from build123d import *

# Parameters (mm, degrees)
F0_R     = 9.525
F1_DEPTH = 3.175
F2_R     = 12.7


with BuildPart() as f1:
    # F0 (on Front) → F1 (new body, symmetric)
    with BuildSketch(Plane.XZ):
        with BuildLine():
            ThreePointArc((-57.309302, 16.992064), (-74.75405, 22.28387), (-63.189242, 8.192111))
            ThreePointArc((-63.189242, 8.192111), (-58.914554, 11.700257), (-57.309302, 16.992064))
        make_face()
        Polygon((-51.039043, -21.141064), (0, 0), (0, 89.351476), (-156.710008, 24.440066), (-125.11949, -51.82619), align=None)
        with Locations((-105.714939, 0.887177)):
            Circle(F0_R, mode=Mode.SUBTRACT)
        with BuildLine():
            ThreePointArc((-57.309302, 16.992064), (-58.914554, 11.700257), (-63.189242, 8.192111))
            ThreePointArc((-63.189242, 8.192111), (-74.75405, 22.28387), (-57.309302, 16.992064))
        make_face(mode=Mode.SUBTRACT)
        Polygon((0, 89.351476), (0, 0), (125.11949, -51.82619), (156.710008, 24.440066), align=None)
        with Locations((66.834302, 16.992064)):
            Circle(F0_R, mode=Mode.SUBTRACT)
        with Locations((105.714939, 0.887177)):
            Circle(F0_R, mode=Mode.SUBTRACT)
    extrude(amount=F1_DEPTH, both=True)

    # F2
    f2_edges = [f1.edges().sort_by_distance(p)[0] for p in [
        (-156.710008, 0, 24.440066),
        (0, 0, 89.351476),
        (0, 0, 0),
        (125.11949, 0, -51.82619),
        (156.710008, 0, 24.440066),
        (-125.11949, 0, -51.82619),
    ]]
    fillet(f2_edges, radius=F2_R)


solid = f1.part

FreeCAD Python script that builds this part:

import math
import FreeCAD as App
import Part
import Sketcher
Q = App.Units.Quantity


def edges_at(feature, points):
    """Names of the edges that pass closest to the given points."""
    edges = feature.Shape.Edges
    near = lambda p: min(range(len(edges)), key=lambda i: edges[i].distToShape(Part.Vertex(*p))[0])
    return sorted({f"Edge{near(p) + 1}" for p in points})

doc = App.newDocument("Part")
body = doc.addObject("PartDesign::Body", "Body")

sketch1 = body.newObject("Sketcher::SketchObject", "Sketch")
sketch1.AttachmentSupport = (doc.getObject("XZ_Plane"), [""])
sketch1.MapMode = "FlatFace"
sketch1.addGeometry(Part.LineSegment(App.Vector(-51, -21, 0), App.Vector(0, 0, 0)), False)
sketch1.addGeometry(Part.LineSegment(App.Vector(0, 0, 0), App.Vector(125, -52, 0)), False)
sketch1.addGeometry(Part.LineSegment(App.Vector(125, -52, 0), App.Vector(157, 24, 0)), False)
sketch1.addGeometry(Part.LineSegment(App.Vector(157, 24, 0), App.Vector(0, 89, 0)), False)
sketch1.addGeometry(Part.LineSegment(App.Vector(0, 89, 0), App.Vector(-157, 24, 0)), False)
sketch1.addGeometry(Part.LineSegment(App.Vector(-157, 24, 0), App.Vector(-125, -52, 0)), False)
sketch1.addGeometry(Part.LineSegment(App.Vector(-125, -52, 0), App.Vector(-51, -21, 0)), False)
sketch1.addGeometry(Part.Circle(App.Vector(-106, 1, 0), App.Vector(0, 0, 1), 10), False)
sketch1.addGeometry(Part.Circle(App.Vector(106, 1, 0), App.Vector(0, 0, 1), 10), False)
sketch1.addGeometry(Part.ArcOfCircle(Part.Circle(App.Vector(-67, 17, 0), App.Vector(0, 0, 1), 10), math.radians(0), math.radians(293)), False)
sketch1.addGeometry(Part.ArcOfCircle(Part.Circle(App.Vector(-67, 17, 0), App.Vector(0, 0, 1), 10), math.radians(-67), math.radians(0)), False)
sketch1.addGeometry(Part.Circle(App.Vector(67, 17, 0), App.Vector(0, 0, 1), 10), False)
sketch1.addConstraint(Sketcher.Constraint("Coincident", 0, 2, 1, 1))
sketch1.addConstraint(Sketcher.Constraint("Coincident", 1, 2, 2, 1))
sketch1.addConstraint(Sketcher.Constraint("Coincident", 2, 2, 3, 1))
sketch1.addConstraint(Sketcher.Constraint("Coincident", 3, 2, 4, 1))
sketch1.addConstraint(Sketcher.Constraint("Coincident", 4, 2, 5, 1))
sketch1.addConstraint(Sketcher.Constraint("Coincident", 5, 2, 6, 1))
sketch1.addConstraint(Sketcher.Constraint("Coincident", 6, 2, 0, 1))
sketch1.addConstraint(Sketcher.Constraint("Tangent", 9, 1, 10, 2))
sketch1.addConstraint(Sketcher.Constraint("Coincident", 10, 1, 9, 2))
sketch1.addConstraint(Sketcher.Constraint("Coincident", 0, 2, -1, 1))
sketch1.addConstraint(Sketcher.Constraint("Equal", 7, 8))
sketch1.addConstraint(Sketcher.Constraint("Equal", 8, 9))
sketch1.addConstraint(Sketcher.Constraint("Equal", 10, 11))
sketch1.addConstraint(Sketcher.Constraint("Symmetric", 7, 3, 8, 3, -2))
sketch1.addConstraint(Sketcher.Constraint("Symmetric", 9, 3, 11, 3, -2))
sketch1.addConstraint(Sketcher.Constraint("Symmetric", 2, 2, 4, 2, -2))
sketch1.addConstraint(Sketcher.Constraint("Symmetric", 1, 2, 5, 2, -2))
sketch1.addConstraint(Sketcher.Constraint("PointOnObject", 3, 2, -2))
sketch1.addConstraint(Sketcher.Constraint("Perpendicular", 1, 2))
sketch1.addConstraint(Sketcher.Constraint("Perpendicular", 2, 3))
sketch1.addConstraint(Sketcher.Constraint("Parallel", 0, 4))
sketch1.addConstraint(Sketcher.Constraint("Horizontal", 11, 3, 9, 1))
sketch1.addConstraint(Sketcher.Constraint("Diameter", 7, Q("0.75 in")))
sketch1.addConstraint(Sketcher.Constraint("Angle", 0, Q("22.5 deg")))
sketch1.addConstraint(Sketcher.Constraint("Distance", 2, Q("3.25 in")))
sketch1.addConstraint(Sketcher.Constraint("Distance", 6, Q("80.184098 mm")))
sketch1.addConstraint(Sketcher.Constraint("DistanceX", -1, 1, 11, 3, Q("66.834302 mm")))
sketch1.addConstraint(Sketcher.Constraint("DistanceY", 7, 3, 3, 2, Q("88.464299 mm")))
sketch1.addConstraint(Sketcher.Constraint("DistanceX", 10, 1, 6, 2, Q("12.150199 mm")))
sketch1.addConstraint(Sketcher.Constraint("Distance", 1, Q("135.42836 mm")))
sketch1.addConstraint(Sketcher.Constraint("DistanceX", 7, 3, -1, 1, Q("105.714939 mm")))
sketch1.addConstraint(Sketcher.Constraint("DistanceY", -1, 1, 10, 1, Q("8.192111 mm")))
pad1 = body.newObject("PartDesign::Pad", "Pad")
pad1.Profile = sketch1
pad1.Length = Q("0.25 in")
pad1.Midplane = True
doc.recompute()

fillet = body.newObject("PartDesign::Fillet", "Fillet")
fillet.Base = (pad1, edges_at(pad1, [
    (-156.71, 0, 24.44),
    (0, 0, 89.351),
    (0, 0, 0),
    (125.119, 0, -51.826),
    (156.71, 0, 24.44),
    (-125.119, 0, -51.826),
]))
fillet.Radius = Q("0.5 in")

doc.recompute()
